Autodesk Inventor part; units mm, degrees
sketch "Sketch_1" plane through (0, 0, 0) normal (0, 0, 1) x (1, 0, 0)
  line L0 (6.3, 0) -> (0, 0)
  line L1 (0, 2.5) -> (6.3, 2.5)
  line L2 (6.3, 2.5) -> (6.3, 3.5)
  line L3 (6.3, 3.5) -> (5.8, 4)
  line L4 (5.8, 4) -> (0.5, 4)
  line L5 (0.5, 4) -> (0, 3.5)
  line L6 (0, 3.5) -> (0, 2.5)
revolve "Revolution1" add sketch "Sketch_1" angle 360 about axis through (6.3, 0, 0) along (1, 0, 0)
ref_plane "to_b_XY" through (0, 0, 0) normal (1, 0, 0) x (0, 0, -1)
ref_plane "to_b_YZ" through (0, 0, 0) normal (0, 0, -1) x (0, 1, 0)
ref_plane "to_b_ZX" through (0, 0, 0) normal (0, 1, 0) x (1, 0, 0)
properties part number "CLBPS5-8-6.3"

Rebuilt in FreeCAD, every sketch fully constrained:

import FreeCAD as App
import Part
import Sketcher

doc = App.newDocument("Part")
params = doc.addObject("Spreadsheet::Sheet", "Params")
for row, (alias, value) in enumerate([
    ("sketch1_height", "1 mm"),
    ("sketch1_width", "6.3 mm"),
    ("sketch1_width2", "5.3 mm"),
    ("revolution_angle", "360 deg"),
], start=1):
    params.set(f"A{row}", alias)
    params.set(f"B{row}", "=" + value)
    params.setAlias(f"B{row}", alias)

body = doc.addObject("PartDesign::Body", "Body")

# Sketch on XY plane
sketch1 = body.newObject("Sketcher::SketchObject", "Sketch")
sketch1.AttachmentSupport = (doc.getObject("XY_Plane"), [""])
sketch1.MapMode = "FlatFace"
sketch1.addGeometry([
    Part.LineSegment(App.Vector(0, 3.5, 0), App.Vector(0, 2.5, 0)),  # 0
    Part.LineSegment(App.Vector(0, 2.5, 0), App.Vector(6.3, 2.5, 0)),  # 1
    Part.LineSegment(App.Vector(6.3, 2.5, 0), App.Vector(6.3, 3.5, 0)),  # 2
    Part.LineSegment(App.Vector(6.3, 3.5, 0), App.Vector(5.8, 4, 0)),  # 3
    Part.LineSegment(App.Vector(5.8, 4, 0), App.Vector(0.5, 4, 0)),  # 4
    Part.LineSegment(App.Vector(0.5, 4, 0), App.Vector(0, 3.5, 0)),  # 5
], False)
sketch1.addConstraint([
    Sketcher.Constraint("Coincident", 0, 2, 1, 1),
    Sketcher.Constraint("Coincident", 1, 2, 2, 1),
    Sketcher.Constraint("Coincident", 2, 2, 3, 1),
    Sketcher.Constraint("Coincident", 3, 2, 4, 1),
    Sketcher.Constraint("Coincident", 4, 2, 5, 1),
    Sketcher.Constraint("Coincident", 5, 2, 0, 1),
    Sketcher.Constraint("Vertical", 0),
    Sketcher.Constraint("Horizontal", 1),
    Sketcher.Constraint("Vertical", 2),
    Sketcher.Constraint("Horizontal", 4),
    Sketcher.Constraint("PointOnObject", 0, 2, -2),
    Sketcher.Constraint("Perpendicular", 3, 5),
    Sketcher.Constraint("Horizontal", 2, 2, 5, 2),
    Sketcher.Constraint("Equal", 3, 5),
    Sketcher.Constraint("DistanceY", 0, 2, 0, 1, 1.0),
    Sketcher.Constraint("DistanceX", 1, 1, 1, 2, 6.3),
    Sketcher.Constraint("DistanceX", 4, 2, 4, 1, 5.3),
    Sketcher.Constraint("DistanceY", -1, 1, 3, 2, 4.0),
])
sketch1.setExpression("Constraints[14]", "Params.sketch1_height")
sketch1.setExpression("Constraints[15]", "Params.sketch1_width")
sketch1.setExpression("Constraints[16]", "Params.sketch1_width2")
revolution = body.newObject("PartDesign::Revolution", "Revolution")
revolution.Profile = sketch1
revolution.ReferenceAxis = (sketch1, ["H_Axis"])
revolution.setExpression("Angle", "Params.revolution_angle")

doc.recompute()
